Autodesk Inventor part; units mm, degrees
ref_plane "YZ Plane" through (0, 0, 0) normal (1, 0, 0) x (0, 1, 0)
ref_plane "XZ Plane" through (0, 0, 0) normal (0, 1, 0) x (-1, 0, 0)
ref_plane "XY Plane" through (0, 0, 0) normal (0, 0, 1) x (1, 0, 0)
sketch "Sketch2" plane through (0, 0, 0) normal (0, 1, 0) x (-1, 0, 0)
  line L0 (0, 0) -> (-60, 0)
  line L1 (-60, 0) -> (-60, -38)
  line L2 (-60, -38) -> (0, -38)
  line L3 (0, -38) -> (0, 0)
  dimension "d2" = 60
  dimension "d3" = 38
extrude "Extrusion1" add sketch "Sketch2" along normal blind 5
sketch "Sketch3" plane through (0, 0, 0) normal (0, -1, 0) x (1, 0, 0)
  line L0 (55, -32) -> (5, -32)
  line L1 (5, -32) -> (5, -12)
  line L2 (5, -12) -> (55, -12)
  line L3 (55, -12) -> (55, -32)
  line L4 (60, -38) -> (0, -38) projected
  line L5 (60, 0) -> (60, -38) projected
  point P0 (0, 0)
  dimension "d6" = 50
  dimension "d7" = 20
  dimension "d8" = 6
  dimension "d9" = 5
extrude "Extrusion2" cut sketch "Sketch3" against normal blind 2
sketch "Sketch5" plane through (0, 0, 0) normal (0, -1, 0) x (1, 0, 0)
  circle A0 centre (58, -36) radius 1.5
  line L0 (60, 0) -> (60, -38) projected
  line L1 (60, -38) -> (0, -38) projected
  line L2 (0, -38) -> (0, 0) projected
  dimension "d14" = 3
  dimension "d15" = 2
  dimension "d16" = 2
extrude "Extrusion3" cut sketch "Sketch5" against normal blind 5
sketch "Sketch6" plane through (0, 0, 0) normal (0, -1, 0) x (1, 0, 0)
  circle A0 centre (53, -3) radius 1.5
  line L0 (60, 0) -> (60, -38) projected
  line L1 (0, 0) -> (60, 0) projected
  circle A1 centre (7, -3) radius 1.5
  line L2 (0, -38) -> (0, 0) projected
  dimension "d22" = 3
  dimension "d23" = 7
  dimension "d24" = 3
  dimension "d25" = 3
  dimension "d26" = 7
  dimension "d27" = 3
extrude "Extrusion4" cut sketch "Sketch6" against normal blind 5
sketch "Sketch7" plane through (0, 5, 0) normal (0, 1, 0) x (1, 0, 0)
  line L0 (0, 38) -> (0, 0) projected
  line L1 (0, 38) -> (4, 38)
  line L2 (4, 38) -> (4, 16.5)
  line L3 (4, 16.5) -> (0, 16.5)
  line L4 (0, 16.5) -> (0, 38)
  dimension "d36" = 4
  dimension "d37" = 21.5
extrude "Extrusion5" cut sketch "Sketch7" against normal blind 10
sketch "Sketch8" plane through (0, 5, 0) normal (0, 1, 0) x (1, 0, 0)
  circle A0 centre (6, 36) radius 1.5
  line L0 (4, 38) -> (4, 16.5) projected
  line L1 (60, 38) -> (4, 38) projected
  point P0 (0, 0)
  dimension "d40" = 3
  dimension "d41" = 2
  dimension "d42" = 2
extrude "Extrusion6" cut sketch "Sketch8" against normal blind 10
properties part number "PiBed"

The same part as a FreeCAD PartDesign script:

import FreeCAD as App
import Part
import Sketcher

V = App.Vector
Q = App.Units.Quantity

doc = App.newDocument("Part")
body = doc.addObject("PartDesign::Body", "Body")

sketch1 = body.newObject("Sketcher::SketchObject", "Sketch")
sketch1.AttachmentSupport = (doc.getObject("XZ_Plane"), [""])
sketch1.MapMode = "FlatFace"
sketch1.addGeometry([
    Part.LineSegment(V(0, -38, 0), V(0, 0, 0)),
    Part.LineSegment(V(0, 0, 0), V(60, 0, 0)),
    Part.LineSegment(V(60, 0, 0), V(60, -38, 0)),
    Part.LineSegment(V(60, -38, 0), V(0, -38, 0)),
], False)
sketch1.addConstraint([
    Sketcher.Constraint("Coincident", 0, 2, 1, 1),
    Sketcher.Constraint("Coincident", 1, 2, 2, 1),
    Sketcher.Constraint("Coincident", 2, 2, 3, 1),
    Sketcher.Constraint("Coincident", 3, 2, 0, 1),
    Sketcher.Constraint("Vertical", 0),
    Sketcher.Constraint("Horizontal", 1),
    Sketcher.Constraint("Vertical", 2),
    Sketcher.Constraint("Horizontal", 3),
    Sketcher.Constraint("Coincident", 0, 2, -1, 1),
    Sketcher.Constraint("DistanceX", 1, 1, 1, 2, Q("60 mm")),
    Sketcher.Constraint("DistanceY", 0, 1, 0, 2, Q("38 mm")),
])
pad1 = body.newObject("PartDesign::Pad", "Pad")
pad1.Profile = sketch1
pad1.Length = 5
pad1.Reversed = True

sketch2 = body.newObject("Sketcher::SketchObject", "Sketch001")
sketch2.AttachmentSupport = (doc.getObject("XZ_Plane"), [""])
sketch2.MapMode = "FlatFace"
sketch2.addGeometry([
    Part.LineSegment(V(5, -32, 0), V(55, -32, 0)),
    Part.LineSegment(V(55, -32, 0), V(55, -12, 0)),
    Part.LineSegment(V(55, -12, 0), V(5, -12, 0)),
    Part.LineSegment(V(5, -12, 0), V(5, -32, 0)),
], False)
sketch2.addConstraint([
    Sketcher.Constraint("Coincident", 0, 2, 1, 1),
    Sketcher.Constraint("Coincident", 1, 2, 2, 1),
    Sketcher.Constraint("Coincident", 2, 2, 3, 1),
    Sketcher.Constraint("Coincident", 3, 2, 0, 1),
    Sketcher.Constraint("Horizontal", 0),
    Sketcher.Constraint("Vertical", 1),
    Sketcher.Constraint("Horizontal", 2),
    Sketcher.Constraint("Vertical", 3),
    Sketcher.Constraint("DistanceX", 0, 1, 0, 2, Q("50 mm")),
    Sketcher.Constraint("DistanceY", 1, 1, 1, 2, Q("20 mm")),
    Sketcher.Constraint("DistanceX", -1, 1, 2, 2, Q("5 mm")),
    Sketcher.Constraint("DistanceY", 0, 2, -1, 1, Q("32 mm")),
])
pocket1 = body.newObject("PartDesign::Pocket", "Pocket")
pocket1.Profile = sketch2
pocket1.Length = 2

sketch3 = body.newObject("Sketcher::SketchObject", "Sketch002")
sketch3.AttachmentSupport = (doc.getObject("XZ_Plane"), [""])
sketch3.MapMode = "FlatFace"
sketch3.addGeometry(Part.Circle(V(58, -36, 0), V(0, 0, 1), 1.5), False)
sketch3.addConstraint([
    Sketcher.Constraint("Diameter", 0, Q("3 mm")),
    Sketcher.Constraint("DistanceX", -1, 1, 0, 3, Q("58 mm")),
    Sketcher.Constraint("DistanceY", 0, 3, -1, 1, Q("36 mm")),
])
pocket2 = body.newObject("PartDesign::Pocket", "Pocket001")
pocket2.Profile = sketch3
pocket2.Length = 5

sketch4 = body.newObject("Sketcher::SketchObject", "Sketch003")
sketch4.AttachmentSupport = (doc.getObject("XZ_Plane"), [""])
sketch4.MapMode = "FlatFace"
sketch4.addGeometry([
    Part.Circle(V(53, -3, 0), V(0, 0, 1), 1.5),
    Part.Circle(V(7, -3, 0), V(0, 0, 1), 1.5),
], False)
sketch4.addConstraint([
    Sketcher.Constraint("Equal", 0, 1),
    Sketcher.Constraint("Horizontal", 0, 3, 1, 3),
    Sketcher.Constraint("Diameter", 0, Q("3 mm")),
    Sketcher.Constraint("DistanceY", 0, 3, -1, 1, Q("3 mm")),
    Sketcher.Constraint("DistanceX", -1, 1, 1, 3, Q("7 mm")),
    Sketcher.Constraint("DistanceX", -1, 1, 0, 3, Q("53 mm")),
])
pocket3 = body.newObject("PartDesign::Pocket", "Pocket002")
pocket3.Profile = sketch4
pocket3.Length = 5

sketch5 = body.newObject("Sketcher::SketchObject", "Sketch004")
sketch5.AttachmentSupport = (doc.getObject("XZ_Plane"), [""])
sketch5.MapMode = "FlatFace"
sketch5.AttachmentOffset = App.Placement(V(0, 0, -5), App.Rotation())
sketch5.addGeometry([
    Part.LineSegment(V(4, -38, 0), V(0, -38, 0)),
    Part.LineSegment(V(0, -38, 0), V(0, -16.5, 0)),
    Part.LineSegment(V(0, -16.5, 0), V(4, -16.5, 0)),
    Part.LineSegment(V(4, -16.5, 0), V(4, -38, 0)),
], False)
sketch5.addConstraint([
    Sketcher.Constraint("Coincident", 0, 2, 1, 1),
    Sketcher.Constraint("Coincident", 1, 2, 2, 1),
    Sketcher.Constraint("Coincident", 2, 2, 3, 1),
    Sketcher.Constraint("Coincident", 3, 2, 0, 1),
    Sketcher.Constraint("Horizontal", 0),
    Sketcher.Constraint("Vertical", 1),
    Sketcher.Constraint("Horizontal", 2),
    Sketcher.Constraint("Vertical", 3),
    Sketcher.Constraint("PointOnObject", 0, 2, -2),
    Sketcher.Constraint("DistanceX", 0, 2, 0, 1, Q("4 mm")),
    Sketcher.Constraint("DistanceY", 1, 1, 1, 2, Q("21.5 mm")),
    Sketcher.Constraint("DistanceY", 0, 2, -1, 1, Q("38 mm")),
])
pocket4 = body.newObject("PartDesign::Pocket", "Pocket003")
pocket4.Profile = sketch5
pocket4.Length = 10
pocket4.Reversed = True

sketch6 = body.newObject("Sketcher::SketchObject", "Sketch005")
sketch6.AttachmentSupport = (doc.getObject("XZ_Plane"), [""])
sketch6.MapMode = "FlatFace"
sketch6.AttachmentOffset = App.Placement(V(0, 0, -5), App.Rotation())
sketch6.addGeometry(Part.Circle(V(6, -36, 0), V(0, 0, 1), 1.5), False)
sketch6.addConstraint([
    Sketcher.Constraint("Diameter", 0, Q("3 mm")),
    Sketcher.Constraint("DistanceX", -1, 1, 0, 3, Q("6 mm")),
    Sketcher.Constraint("DistanceY", 0, 3, -1, 1, Q("36 mm")),
])
pocket5 = body.newObject("PartDesign::Pocket", "Pocket004")
pocket5.Profile = sketch6
pocket5.Length = 10
pocket5.Reversed = True

doc.recompute()
